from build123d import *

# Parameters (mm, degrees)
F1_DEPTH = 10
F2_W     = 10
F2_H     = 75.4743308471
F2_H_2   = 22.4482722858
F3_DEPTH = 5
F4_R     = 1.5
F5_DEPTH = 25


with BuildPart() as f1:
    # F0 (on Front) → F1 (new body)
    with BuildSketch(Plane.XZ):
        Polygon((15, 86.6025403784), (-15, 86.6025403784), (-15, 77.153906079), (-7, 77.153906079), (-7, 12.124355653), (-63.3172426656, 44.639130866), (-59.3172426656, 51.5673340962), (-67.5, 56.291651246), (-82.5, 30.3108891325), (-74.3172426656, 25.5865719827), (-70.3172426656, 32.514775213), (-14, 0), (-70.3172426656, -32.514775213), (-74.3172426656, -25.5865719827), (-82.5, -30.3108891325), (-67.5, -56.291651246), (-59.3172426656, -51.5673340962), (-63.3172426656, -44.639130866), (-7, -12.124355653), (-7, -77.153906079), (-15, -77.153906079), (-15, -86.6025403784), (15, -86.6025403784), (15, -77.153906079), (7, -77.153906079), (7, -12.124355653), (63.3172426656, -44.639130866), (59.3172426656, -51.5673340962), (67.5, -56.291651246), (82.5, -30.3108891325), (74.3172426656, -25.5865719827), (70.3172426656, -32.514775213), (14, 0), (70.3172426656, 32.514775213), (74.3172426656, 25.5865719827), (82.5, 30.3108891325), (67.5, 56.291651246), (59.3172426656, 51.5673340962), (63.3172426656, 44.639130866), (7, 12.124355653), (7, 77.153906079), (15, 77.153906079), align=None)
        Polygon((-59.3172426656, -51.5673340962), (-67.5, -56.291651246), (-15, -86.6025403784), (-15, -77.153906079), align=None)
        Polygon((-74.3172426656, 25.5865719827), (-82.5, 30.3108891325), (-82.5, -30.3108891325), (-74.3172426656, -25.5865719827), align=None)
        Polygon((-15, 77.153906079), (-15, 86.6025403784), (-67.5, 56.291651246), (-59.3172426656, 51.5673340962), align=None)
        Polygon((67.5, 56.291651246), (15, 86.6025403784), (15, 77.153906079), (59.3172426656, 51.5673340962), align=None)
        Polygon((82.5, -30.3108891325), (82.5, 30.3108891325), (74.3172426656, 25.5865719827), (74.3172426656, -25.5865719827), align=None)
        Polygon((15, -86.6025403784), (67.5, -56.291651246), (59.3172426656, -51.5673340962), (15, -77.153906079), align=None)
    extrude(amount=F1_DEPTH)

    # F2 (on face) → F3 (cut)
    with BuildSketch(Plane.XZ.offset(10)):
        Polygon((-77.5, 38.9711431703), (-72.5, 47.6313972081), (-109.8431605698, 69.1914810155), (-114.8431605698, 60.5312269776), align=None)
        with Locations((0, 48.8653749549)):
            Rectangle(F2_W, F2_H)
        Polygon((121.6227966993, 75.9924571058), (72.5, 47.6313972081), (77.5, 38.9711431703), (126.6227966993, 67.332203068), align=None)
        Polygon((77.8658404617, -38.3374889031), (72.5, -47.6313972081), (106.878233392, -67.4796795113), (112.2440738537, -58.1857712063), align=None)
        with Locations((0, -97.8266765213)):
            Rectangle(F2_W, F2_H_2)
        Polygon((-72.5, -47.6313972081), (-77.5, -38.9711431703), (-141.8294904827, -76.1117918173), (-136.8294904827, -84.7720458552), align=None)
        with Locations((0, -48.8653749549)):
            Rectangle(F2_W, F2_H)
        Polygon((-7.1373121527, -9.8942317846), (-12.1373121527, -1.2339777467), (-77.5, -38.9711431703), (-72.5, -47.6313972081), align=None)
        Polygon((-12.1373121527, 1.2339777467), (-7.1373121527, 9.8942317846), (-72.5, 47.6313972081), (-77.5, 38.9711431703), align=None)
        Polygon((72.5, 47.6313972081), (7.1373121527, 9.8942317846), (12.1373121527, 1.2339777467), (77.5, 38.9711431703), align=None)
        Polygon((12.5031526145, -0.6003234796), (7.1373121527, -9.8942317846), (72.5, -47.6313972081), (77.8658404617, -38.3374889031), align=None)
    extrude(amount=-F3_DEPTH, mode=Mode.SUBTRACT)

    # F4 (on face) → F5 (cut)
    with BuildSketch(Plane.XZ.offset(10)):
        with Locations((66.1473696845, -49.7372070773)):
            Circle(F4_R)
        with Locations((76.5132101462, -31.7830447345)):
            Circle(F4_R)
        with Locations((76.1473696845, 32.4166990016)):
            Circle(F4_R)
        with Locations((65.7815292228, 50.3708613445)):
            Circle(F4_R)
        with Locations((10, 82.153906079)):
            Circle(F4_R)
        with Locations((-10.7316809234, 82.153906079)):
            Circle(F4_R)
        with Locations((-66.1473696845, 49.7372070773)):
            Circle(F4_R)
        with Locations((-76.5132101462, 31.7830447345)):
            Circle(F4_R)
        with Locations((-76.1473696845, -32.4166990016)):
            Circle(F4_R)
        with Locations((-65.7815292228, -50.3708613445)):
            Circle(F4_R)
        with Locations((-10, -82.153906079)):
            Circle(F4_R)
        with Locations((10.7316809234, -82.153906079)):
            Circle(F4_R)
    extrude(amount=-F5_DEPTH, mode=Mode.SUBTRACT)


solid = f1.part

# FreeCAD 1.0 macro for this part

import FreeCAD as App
import Part
import Sketcher
from FreeCAD import Vector
Q = App.Units.Quantity


def add_polygon(sketch, points):
    """Adds a closed chain of lines whose ends are joined by coincident constraints."""
    first, n = sketch.GeometryCount, len(points)
    for a, b in zip(points, points[1:] + points[:1]):
        sketch.addGeometry(Part.LineSegment(App.Vector(*a, 0), App.Vector(*b, 0)), False)
    for i in range(n):
        sketch.addConstraint(Sketcher.Constraint("Coincident", first + i, 2, first + (i + 1) % n, 1))

doc = App.newDocument("Part")
body = doc.addObject("PartDesign::Body", "Body")

# Sketch on XZ plane
sketch1 = doc.addObject("Sketcher::SketchObject", "Sketch")
body.addObject(sketch1)
sketch1.AttachmentSupport = (doc.XZ_Plane, [""])
sketch1.MapMode = "FlatFace"
add_polygon(sketch1, [(15, 87), (-15, 87), (-68, 56), (-82, 30), (-82, -30), (-68, -56), (-15, -87), (15, -87), (68, -56), (82, -30), (82, 30), (68, 56)])  # lines 0-11
add_polygon(sketch1, [(15, -77), (7, -77), (7, -12), (63, -45), (59, -52)])  # lines 12-16
add_polygon(sketch1, [(74, -26), (70, -33), (14, 0), (70, 33), (74, 26)])  # lines 17-21
add_polygon(sketch1, [(59, 52), (63, 45), (7, 12), (7, 77), (15, 77)])  # lines 22-26
add_polygon(sketch1, [(-15, 77), (-7, 77), (-7, 12), (-63, 45), (-59, 52)])  # lines 27-31
add_polygon(sketch1, [(-74, 26), (-70, 33), (-14, 0), (-70, -33), (-74, -26)])  # lines 32-36
add_polygon(sketch1, [(-59, -52), (-63, -45), (-7, -12), (-7, -77), (-15, -77)])  # lines 37-41
sketch1.addConstraint([
    Sketcher.Constraint("Horizontal", 0),
    Sketcher.Constraint("Vertical", 3),
    Sketcher.Constraint("Horizontal", 6),
    Sketcher.Constraint("Vertical", 9),
    Sketcher.Constraint("Horizontal", 12),
    Sketcher.Constraint("Vertical", 13),
    Sketcher.Constraint("Vertical", 21),
    Sketcher.Constraint("Vertical", 24),
    Sketcher.Constraint("Horizontal", 25),
    Sketcher.Constraint("Horizontal", 27),
    Sketcher.Constraint("Vertical", 28),
    Sketcher.Constraint("Vertical", 36),
    Sketcher.Constraint("Vertical", 39),
    Sketcher.Constraint("Horizontal", 40),
    Sketcher.Constraint("Symmetric", 0, 2, 6, 2, -1, 1),
    Sketcher.Constraint("Symmetric", 1, 2, 7, 2, -1, 1),
    Sketcher.Constraint("Symmetric", 2, 2, 8, 2, -1, 1),
    Sketcher.Constraint("Symmetric", 4, 2, 10, 2, -1, 1),
    Sketcher.Constraint("Symmetric", 12, 2, 27, 2, -1, 1),
    Sketcher.Constraint("Symmetric", 14, 2, 29, 2, -1, 1),
    Sketcher.Constraint("Symmetric", 15, 2, 30, 2, -1, 1),
    Sketcher.Constraint("Symmetric", 17, 2, 32, 2, -1, 1),
    Sketcher.Constraint("Symmetric", 18, 2, 33, 2, -1, 1),
    Sketcher.Constraint("Symmetric", 19, 2, 34, 2, -1, 1),
    Sketcher.Constraint("Symmetric", 20, 2, 35, 2, -1, 1),
    Sketcher.Constraint("Symmetric", 22, 2, 37, 2, -1, 1),
    Sketcher.Constraint("Symmetric", 23, 2, 38, 2, -1, 1),
    Sketcher.Constraint("Symmetric", 25, 2, 40, 2, -1, 1),
    Sketcher.Constraint("Symmetric", 26, 2, 41, 2, -1, 1),
    Sketcher.Constraint("Symmetric", 4, 2, 7, 2, -2),
    Sketcher.Constraint("Symmetric", 24, 2, 27, 2, -2),
    Sketcher.Constraint("Symmetric", 22, 2, 29, 2, -2),
    Sketcher.Constraint("Symmetric", 26, 2, 30, 2, -2),
    Sketcher.Constraint("Symmetric", 19, 2, 32, 2, -2),
    Sketcher.Constraint("PointOnObject", 18, 2, -1),
    Sketcher.Constraint("Perpendicular", 1, 4),
    Sketcher.Constraint("Perpendicular", 2, 5),
    Sketcher.Constraint("Perpendicular", 7, 10),
    Sketcher.Constraint("Perpendicular", 8, 11),
    Sketcher.Constraint("Parallel", 11, 14),
    Sketcher.Constraint("Perpendicular", 14, 15),
    Sketcher.Constraint("Perpendicular", 10, 16),
    Sketcher.Constraint("Parallel", 15, 17),
    Sketcher.Constraint("Perpendicular", 17, 18),
    Sketcher.Constraint("Parallel", 16, 19),
    Sketcher.Constraint("Perpendicular", 19, 20),
    Sketcher.Constraint("Perpendicular", 22, 23),
    Sketcher.Constraint("Parallel", 18, 26),
    Sketcher.Constraint("Parallel", 26, 29),
    Sketcher.Constraint("Parallel", 23, 31),
    Sketcher.Constraint("Parallel", 30, 32),
    Sketcher.Constraint("Vertical", 11, 2, 16, 2),
    Sketcher.Constraint("Equal", 15, 17),
    Sketcher.Constraint("Equal", 14, 18),
    Sketcher.Constraint("DistanceX", 0, 2, 0, 1, Q("30 mm")),
    Sketcher.Constraint("DistanceX", 12, 2, 12, 1, Q("8 mm")),
    Sketcher.Constraint("Angle", 1, Q("-150 deg")),
    Sketcher.Constraint("Distance", 2, Q("30 mm")),
    Sketcher.Constraint("Distance", 15, Q("8 mm")),
    Sketcher.Constraint("DistanceX", -1, 1, 18, 2, Q("14 mm")),
    Sketcher.Constraint("DistanceX", 4, 2, 7, 2, Q("135 mm")),
    Sketcher.Constraint("DistanceY", 3, 2, 3, 1, Q("60.621778 mm")),
    Sketcher.Constraint("DistanceY", 13, 1, 13, 2, Q("65.02955 mm")),
    Sketcher.Constraint("DistanceY", 14, 2, -1, 1, Q("44.639131 mm")),
])
pad1 = doc.addObject("PartDesign::Pad", "Pad")
body.addObject(pad1)
pad1.Profile = sketch1
pad1.Length = 10

# Sketch on XZ plane
sketch2 = doc.addObject("Sketcher::SketchObject", "Sketch001")
body.addObject(sketch2)
sketch2.AttachmentSupport = (doc.XZ_Plane, [""])
sketch2.MapMode = "FlatFace"
sketch2.AttachmentOffset = App.Placement(Vector(0, 0, 10), App.Rotation())
add_polygon(sketch2, [(-72, 48), (-110, 69), (-115, 61), (-78, 39), (-12, 1), (-7, 10)])  # lines 0-5
add_polygon(sketch2, [(-5, 87), (-5, 11), (5, 11), (5, 87)])  # lines 6-9
add_polygon(sketch2, [(122, 76), (72, 48), (7, 10), (12, 1), (127, 67)])  # lines 10-14
add_polygon(sketch2, [(72, -48), (107, -67), (112, -58), (78, -38), (13, -1), (7, -10)])  # lines 15-20
add_polygon(sketch2, [(-5, -109), (5, -109), (5, -11), (-5, -11)])  # lines 21-24
add_polygon(sketch2, [(-142, -76), (-137, -85), (-72, -48), (-7, -10), (-12, -1)])  # lines 25-29
sketch2.addConstraint([
    Sketcher.Constraint("Vertical", 6),
    Sketcher.Constraint("Horizontal", 7),
    Sketcher.Constraint("Vertical", 8),
    Sketcher.Constraint("Horizontal", 9),
    Sketcher.Constraint("Horizontal", 21),
    Sketcher.Constraint("Vertical", 22),
    Sketcher.Constraint("Horizontal", 23),
    Sketcher.Constraint("Vertical", 24),
    Sketcher.Constraint("Symmetric", 4, 2, 19, 2, -1, 1),
    Sketcher.Constraint("Symmetric", 5, 2, 20, 2, -1, 1),
    Sketcher.Constraint("Symmetric", 6, 2, 22, 2, -1, 1),
    Sketcher.Constraint("Symmetric", 10, 2, 26, 2, -1, 1),
    Sketcher.Constraint("Symmetric", 11, 2, 27, 2, -1, 1),
    Sketcher.Constraint("Symmetric", 12, 2, 28, 2, -1, 1),
    Sketcher.Constraint("Symmetric", 5, 2, 10, 2, -2),
    Sketcher.Constraint("Symmetric", 4, 2, 11, 2, -2),
    Sketcher.Constraint("Symmetric", 3, 2, 12, 2, -2),
    Sketcher.Constraint("Perpendicular", 0, 1),
    Sketcher.Constraint("Perpendicular", 1, 2),
    Sketcher.Constraint("Parallel", 2, 3),
    Sketcher.Constraint("Perpendicular", 3, 4),
    Sketcher.Constraint("Perpendicular", 4, 5),
    Sketcher.Constraint("Parallel", 10, 11),
    Sketcher.Constraint("Perpendicular", 12, 13),
    Sketcher.Constraint("Perpendicular", 13, 14),
    Sketcher.Constraint("Parallel", 5, 15),
    Sketcher.Constraint("Perpendicular", 15, 16),
    Sketcher.Constraint("Perpendicular", 16, 17),
    Sketcher.Constraint("Parallel", 17, 18),
    Sketcher.Constraint("Perpendicular", 18, 19),
    Sketcher.Constraint("Parallel", 14, 25),
    Sketcher.Constraint("Perpendicular", 25, 26),
    Sketcher.Constraint("Perpendicular", 28, 29),
    Sketcher.Constraint("Vertical", 8, 2, 21, 2),
    Sketcher.Constraint("Vertical", 9, 2, 23, 2),
    Sketcher.Constraint("Equal", 0, 2),
    Sketcher.Constraint("Equal", 15, 17),
    Sketcher.Constraint("DistanceX", 7, 1, 7, 2, Q("10 mm")),
    Sketcher.Constraint("Angle", 0, Q("150 deg")),
    Sketcher.Constraint("Distance", 1, Q("10 mm")),
    Sketcher.Constraint("DistanceX", 2, 2, -1, 1, Q("77.5 mm")),
    Sketcher.Constraint("DistanceY", 6, 2, 6, 1, Q("75.474331 mm")),
    Sketcher.Constraint("DistanceY", 18, 2, 12, 2, Q("1.834301 mm")),
    Sketcher.Constraint("Distance", 3, Q("75.474331 mm")),
    Sketcher.Constraint("Distance", 10, Q("56.72212 mm")),
    Sketcher.Constraint("Distance", 16, Q("10.731681 mm")),
    Sketcher.Constraint("Distance", 29, Q("149.755628 mm")),
    Sketcher.Constraint("DistanceY", 22, 1, 22, 2, Q("97.922603 mm")),
    Sketcher.Constraint("DistanceX", 0, 2, -1, 1, Q("109.843161 mm")),
    Sketcher.Constraint("DistanceY", -1, 1, 6, 2, Q("11.12821 mm")),
    Sketcher.Constraint("DistanceY", 15, 2, -1, 1, Q("67.47968 mm")),
])
pocket1 = doc.addObject("PartDesign::Pocket", "Pocket")
body.addObject(pocket1)
pocket1.Profile = sketch2
pocket1.Length = 5

# Sketch on XZ plane
sketch3 = doc.addObject("Sketcher::SketchObject", "Sketch002")
body.addObject(sketch3)
sketch3.AttachmentSupport = (doc.XZ_Plane, [""])
sketch3.MapMode = "FlatFace"
sketch3.AttachmentOffset = App.Placement(Vector(0, 0, 10), App.Rotation())
sketch3.addGeometry([
    Part.Circle(Vector(66.1, -49.7, 0), Vector(0, 0, 1), 1.5),  # 0
    Part.Circle(Vector(76.5, -31.8, 0), Vector(0, 0, 1), 1.5),  # 1
    Part.Circle(Vector(76.1, 32.4, 0), Vector(0, 0, 1), 1.5),  # 2
    Part.Circle(Vector(65.8, 50.4, 0), Vector(0, 0, 1), 1.5),  # 3
    Part.Circle(Vector(10, 82.2, 0), Vector(0, 0, 1), 1.5),  # 4
    Part.Circle(Vector(-10.7, 82.2, 0), Vector(0, 0, 1), 1.5),  # 5
    Part.Circle(Vector(-66.1, 49.7, 0), Vector(0, 0, 1), 1.5),  # 6
    Part.Circle(Vector(-76.5, 31.8, 0), Vector(0, 0, 1), 1.5),  # 7
    Part.Circle(Vector(-76.1, -32.4, 0), Vector(0, 0, 1), 1.5),  # 8
    Part.Circle(Vector(-65.8, -50.4, 0), Vector(0, 0, 1), 1.5),  # 9
    Part.Circle(Vector(-10, -82.2, 0), Vector(0, 0, 1), 1.5),  # 10
    Part.Circle(Vector(10.7, -82.2, 0), Vector(0, 0, 1), 1.5),  # 11
], False)
sketch3.addConstraint([
    Sketcher.Constraint("Equal", 0, 1),
    Sketcher.Constraint("Equal", 1, 2),
    Sketcher.Constraint("Equal", 2, 3),
    Sketcher.Constraint("Equal", 3, 4),
    Sketcher.Constraint("Equal", 4, 5),
    Sketcher.Constraint("Equal", 5, 6),
    Sketcher.Constraint("Equal", 6, 7),
    Sketcher.Constraint("Equal", 7, 8),
    Sketcher.Constraint("Equal", 8, 9),
    Sketcher.Constraint("Equal", 9, 10),
    Sketcher.Constraint("Equal", 10, 11),
    Sketcher.Constraint("Symmetric", 0, 3, 6, 3, -1, 1),
    Sketcher.Constraint("Symmetric", 1, 3, 7, 3, -1, 1),
    Sketcher.Constraint("Symmetric", 2, 3, 8, 3, -1, 1),
    Sketcher.Constraint("Symmetric", 3, 3, 9, 3, -1, 1),
    Sketcher.Constraint("Symmetric", 4, 3, 10, 3, -1, 1),
    Sketcher.Constraint("Symmetric", 5, 3, 11, 3, -1, 1),
    Sketcher.Constraint("Horizontal", 4, 3, 5, 3),
    Sketcher.Constraint("Diameter", 0, Q("3 mm")),
    Sketcher.Constraint("DistanceX", -1, 1, 4, 3, Q("10 mm")),
    Sketcher.Constraint("DistanceX", 0, 3, 2, 3, Q("10 mm")),
    Sketcher.Constraint("DistanceY", -1, 1, 2, 3, Q("32.416699 mm")),
    Sketcher.Constraint("DistanceY", 6, 3, 5, 3, Q("32.416699 mm")),
    Sketcher.Constraint("DistanceX", 6, 3, 3, 3, Q("131.928899 mm")),
    Sketcher.Constraint("DistanceX", -1, 1, 0, 3, Q("66.14737 mm")),
    Sketcher.Constraint("DistanceX", -1, 1, 1, 3, Q("76.51321 mm")),
    Sketcher.Constraint("DistanceY", -1, 1, 3, 3, Q("50.370861 mm")),
    Sketcher.Constraint("DistanceX", 5, 3, -1, 1, Q("10.731681 mm")),
    Sketcher.Constraint("DistanceY", 0, 3, 3, 3, Q("100.108068 mm")),
    Sketcher.Constraint("DistanceY", 1, 3, 4, 3, Q("113.936951 mm")),
])
pocket2 = doc.addObject("PartDesign::Pocket", "Pocket001")
body.addObject(pocket2)
pocket2.Profile = sketch3
pocket2.Length = 25

doc.recompute()
